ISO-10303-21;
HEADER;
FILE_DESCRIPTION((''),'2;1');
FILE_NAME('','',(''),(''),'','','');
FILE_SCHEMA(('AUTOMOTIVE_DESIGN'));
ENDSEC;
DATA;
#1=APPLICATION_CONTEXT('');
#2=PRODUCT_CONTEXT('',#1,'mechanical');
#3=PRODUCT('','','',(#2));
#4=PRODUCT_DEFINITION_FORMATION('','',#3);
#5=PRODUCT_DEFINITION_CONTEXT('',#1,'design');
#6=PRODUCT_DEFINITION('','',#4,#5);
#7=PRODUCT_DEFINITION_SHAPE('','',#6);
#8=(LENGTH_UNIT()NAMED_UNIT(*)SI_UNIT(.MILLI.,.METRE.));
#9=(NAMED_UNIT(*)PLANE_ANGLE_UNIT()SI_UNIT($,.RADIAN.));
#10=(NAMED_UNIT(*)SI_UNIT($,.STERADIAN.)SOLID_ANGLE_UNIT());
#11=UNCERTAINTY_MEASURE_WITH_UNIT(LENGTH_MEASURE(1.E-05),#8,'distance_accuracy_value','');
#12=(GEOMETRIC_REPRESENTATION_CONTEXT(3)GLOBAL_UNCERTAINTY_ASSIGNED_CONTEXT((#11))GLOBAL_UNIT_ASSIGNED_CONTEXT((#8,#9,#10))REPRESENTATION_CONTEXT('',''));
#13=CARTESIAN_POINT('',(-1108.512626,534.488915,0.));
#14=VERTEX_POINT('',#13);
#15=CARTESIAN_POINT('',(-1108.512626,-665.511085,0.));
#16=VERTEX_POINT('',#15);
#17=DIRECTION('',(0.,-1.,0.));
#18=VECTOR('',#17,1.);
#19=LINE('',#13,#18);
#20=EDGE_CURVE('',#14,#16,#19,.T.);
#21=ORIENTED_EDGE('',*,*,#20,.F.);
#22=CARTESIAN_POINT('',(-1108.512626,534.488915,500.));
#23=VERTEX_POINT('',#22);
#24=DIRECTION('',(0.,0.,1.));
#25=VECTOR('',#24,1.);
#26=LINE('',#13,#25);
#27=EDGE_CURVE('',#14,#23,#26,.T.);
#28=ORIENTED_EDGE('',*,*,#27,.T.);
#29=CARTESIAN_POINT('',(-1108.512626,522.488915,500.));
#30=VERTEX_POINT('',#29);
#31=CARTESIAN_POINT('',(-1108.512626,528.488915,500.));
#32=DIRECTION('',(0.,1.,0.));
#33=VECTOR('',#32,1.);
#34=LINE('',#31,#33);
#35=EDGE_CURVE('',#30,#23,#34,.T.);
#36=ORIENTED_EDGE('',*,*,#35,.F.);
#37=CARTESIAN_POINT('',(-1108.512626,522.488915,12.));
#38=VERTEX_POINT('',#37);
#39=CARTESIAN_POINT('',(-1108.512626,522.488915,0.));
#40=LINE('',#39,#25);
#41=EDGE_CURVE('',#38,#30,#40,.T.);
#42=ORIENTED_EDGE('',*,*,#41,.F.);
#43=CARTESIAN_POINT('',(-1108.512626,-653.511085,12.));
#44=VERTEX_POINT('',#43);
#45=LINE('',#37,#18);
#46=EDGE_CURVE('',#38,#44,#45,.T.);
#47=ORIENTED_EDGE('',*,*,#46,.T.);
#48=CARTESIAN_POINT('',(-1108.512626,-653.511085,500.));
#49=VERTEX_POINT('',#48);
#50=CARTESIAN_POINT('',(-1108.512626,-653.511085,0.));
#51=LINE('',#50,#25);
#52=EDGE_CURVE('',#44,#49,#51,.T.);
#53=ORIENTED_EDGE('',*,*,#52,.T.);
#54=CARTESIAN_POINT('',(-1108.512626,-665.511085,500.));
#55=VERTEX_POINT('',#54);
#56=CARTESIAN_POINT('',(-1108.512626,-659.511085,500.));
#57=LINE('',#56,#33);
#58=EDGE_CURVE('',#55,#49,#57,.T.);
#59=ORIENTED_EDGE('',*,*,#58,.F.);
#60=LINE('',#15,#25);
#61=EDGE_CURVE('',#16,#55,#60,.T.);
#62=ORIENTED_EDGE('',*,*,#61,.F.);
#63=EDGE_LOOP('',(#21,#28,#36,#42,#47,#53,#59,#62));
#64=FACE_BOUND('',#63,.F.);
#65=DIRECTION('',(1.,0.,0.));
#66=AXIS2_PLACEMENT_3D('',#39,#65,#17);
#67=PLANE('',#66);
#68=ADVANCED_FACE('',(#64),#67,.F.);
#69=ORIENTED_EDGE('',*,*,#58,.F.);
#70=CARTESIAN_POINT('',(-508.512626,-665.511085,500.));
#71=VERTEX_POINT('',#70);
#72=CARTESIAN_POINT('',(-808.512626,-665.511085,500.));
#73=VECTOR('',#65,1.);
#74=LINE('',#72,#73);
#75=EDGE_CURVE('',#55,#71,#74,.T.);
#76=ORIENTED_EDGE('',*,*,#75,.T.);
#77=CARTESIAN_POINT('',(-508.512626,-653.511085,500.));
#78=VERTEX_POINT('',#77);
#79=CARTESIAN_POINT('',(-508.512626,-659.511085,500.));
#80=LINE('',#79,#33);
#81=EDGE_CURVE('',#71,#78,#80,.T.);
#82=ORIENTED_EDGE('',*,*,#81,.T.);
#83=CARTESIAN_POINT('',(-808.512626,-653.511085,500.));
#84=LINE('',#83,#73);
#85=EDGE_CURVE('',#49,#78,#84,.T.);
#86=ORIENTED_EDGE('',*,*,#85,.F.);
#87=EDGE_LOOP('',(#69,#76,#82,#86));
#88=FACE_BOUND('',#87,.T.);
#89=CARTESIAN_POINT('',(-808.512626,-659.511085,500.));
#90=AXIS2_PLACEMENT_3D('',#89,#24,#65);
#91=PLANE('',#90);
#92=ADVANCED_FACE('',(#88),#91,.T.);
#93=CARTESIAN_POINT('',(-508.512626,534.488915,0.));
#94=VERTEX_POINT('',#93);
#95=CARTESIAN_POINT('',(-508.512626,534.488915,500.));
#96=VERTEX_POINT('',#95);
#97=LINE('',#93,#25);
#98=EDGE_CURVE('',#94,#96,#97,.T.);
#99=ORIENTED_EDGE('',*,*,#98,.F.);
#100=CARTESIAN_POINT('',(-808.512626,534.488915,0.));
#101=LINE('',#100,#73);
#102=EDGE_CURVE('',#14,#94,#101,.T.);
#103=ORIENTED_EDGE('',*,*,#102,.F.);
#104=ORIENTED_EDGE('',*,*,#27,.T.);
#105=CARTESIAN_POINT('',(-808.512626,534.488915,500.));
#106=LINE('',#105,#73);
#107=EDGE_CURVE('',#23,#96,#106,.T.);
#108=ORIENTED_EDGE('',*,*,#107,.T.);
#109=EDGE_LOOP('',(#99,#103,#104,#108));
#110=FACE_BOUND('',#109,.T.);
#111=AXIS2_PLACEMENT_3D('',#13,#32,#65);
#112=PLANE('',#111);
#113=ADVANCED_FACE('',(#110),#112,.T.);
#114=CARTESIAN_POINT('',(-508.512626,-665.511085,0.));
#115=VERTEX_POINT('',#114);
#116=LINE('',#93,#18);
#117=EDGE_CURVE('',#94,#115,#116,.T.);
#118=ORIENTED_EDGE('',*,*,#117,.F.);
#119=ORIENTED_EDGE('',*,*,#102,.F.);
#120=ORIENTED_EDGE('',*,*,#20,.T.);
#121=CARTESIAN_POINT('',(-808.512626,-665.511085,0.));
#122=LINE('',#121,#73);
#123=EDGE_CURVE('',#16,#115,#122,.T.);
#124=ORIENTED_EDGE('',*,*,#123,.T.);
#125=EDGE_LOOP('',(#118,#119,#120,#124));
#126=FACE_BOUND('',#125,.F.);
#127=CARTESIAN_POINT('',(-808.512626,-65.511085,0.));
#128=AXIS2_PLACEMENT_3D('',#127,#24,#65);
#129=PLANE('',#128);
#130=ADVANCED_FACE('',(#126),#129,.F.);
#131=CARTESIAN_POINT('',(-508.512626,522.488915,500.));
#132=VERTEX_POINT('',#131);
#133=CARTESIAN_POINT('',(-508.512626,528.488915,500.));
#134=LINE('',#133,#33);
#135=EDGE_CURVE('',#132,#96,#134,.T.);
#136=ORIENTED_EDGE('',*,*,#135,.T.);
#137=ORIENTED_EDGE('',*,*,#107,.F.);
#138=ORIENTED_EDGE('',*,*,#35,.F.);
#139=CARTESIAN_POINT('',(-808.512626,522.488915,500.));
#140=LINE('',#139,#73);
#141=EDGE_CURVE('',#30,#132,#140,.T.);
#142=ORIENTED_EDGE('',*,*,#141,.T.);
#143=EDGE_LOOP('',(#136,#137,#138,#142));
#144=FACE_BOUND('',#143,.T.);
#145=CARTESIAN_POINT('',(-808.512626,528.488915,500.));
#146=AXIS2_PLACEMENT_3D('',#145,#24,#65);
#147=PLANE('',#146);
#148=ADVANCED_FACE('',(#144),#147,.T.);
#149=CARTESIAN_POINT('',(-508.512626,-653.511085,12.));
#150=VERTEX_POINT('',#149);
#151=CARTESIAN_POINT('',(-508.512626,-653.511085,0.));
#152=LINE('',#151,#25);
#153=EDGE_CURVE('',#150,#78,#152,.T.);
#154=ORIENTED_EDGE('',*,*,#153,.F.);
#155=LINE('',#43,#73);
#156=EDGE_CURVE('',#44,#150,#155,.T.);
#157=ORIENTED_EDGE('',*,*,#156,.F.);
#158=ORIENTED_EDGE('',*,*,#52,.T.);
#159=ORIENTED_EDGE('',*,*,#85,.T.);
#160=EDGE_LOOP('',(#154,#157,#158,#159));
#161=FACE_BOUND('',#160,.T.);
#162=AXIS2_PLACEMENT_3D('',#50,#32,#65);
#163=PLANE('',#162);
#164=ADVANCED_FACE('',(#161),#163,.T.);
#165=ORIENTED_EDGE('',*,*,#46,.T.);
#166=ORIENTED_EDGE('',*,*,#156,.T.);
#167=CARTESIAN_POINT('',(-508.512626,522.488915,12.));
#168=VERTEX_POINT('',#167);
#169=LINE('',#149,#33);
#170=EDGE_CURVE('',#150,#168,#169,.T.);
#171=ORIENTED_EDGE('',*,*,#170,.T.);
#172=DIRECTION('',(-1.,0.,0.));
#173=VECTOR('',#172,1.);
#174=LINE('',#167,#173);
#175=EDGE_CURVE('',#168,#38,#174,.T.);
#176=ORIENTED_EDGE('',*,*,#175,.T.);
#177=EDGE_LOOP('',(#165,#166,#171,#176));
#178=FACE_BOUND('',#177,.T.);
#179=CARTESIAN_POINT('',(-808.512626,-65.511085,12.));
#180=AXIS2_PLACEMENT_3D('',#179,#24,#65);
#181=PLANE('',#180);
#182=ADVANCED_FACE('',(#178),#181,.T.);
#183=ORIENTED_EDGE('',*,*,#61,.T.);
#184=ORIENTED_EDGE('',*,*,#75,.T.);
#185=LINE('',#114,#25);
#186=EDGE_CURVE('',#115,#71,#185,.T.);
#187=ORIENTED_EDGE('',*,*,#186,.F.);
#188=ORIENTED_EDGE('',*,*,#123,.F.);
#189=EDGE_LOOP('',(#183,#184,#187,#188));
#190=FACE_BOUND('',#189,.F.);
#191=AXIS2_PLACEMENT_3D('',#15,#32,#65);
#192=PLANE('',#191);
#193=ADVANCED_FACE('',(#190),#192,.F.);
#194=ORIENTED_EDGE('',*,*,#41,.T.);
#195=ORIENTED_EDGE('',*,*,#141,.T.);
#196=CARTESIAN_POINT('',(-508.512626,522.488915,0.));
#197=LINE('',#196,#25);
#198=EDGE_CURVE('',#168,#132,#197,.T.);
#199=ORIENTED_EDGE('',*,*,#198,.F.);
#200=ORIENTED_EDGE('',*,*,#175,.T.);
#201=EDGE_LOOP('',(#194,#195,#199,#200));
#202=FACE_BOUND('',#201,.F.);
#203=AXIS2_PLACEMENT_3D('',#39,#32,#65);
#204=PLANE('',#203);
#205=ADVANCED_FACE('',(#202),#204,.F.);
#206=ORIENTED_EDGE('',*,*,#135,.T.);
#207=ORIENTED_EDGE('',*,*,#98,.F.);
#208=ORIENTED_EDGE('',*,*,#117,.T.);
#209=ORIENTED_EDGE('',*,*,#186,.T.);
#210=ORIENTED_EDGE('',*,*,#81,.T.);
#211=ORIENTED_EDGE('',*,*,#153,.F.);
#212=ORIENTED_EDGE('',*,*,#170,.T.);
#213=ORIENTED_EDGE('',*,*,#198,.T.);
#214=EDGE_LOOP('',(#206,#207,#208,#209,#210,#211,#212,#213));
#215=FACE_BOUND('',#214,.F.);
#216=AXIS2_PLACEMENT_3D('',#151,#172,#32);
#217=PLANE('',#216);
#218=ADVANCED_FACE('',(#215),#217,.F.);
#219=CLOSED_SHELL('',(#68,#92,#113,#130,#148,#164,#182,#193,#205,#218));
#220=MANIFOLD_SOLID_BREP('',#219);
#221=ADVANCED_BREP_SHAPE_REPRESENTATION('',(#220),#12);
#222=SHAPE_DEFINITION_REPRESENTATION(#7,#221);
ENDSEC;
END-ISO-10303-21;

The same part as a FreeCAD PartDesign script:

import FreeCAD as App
import Part
import Sketcher

V = App.Vector
Q = App.Units.Quantity


def add_polygon(sketch, points):
    """Adds a closed chain of lines whose ends are joined by coincident constraints."""
    first, n = sketch.GeometryCount, len(points)
    for a, b in zip(points, points[1:] + points[:1]):
        sketch.addGeometry(Part.LineSegment(App.Vector(*a, 0), App.Vector(*b, 0)), False)
    for i in range(n):
        sketch.addConstraint(Sketcher.Constraint("Coincident", first + i, 2, first + (i + 1) % n, 1))

doc = App.newDocument("Part")
params = doc.addObject("Spreadsheet::Sheet", "Params")
for row, (alias, value) in enumerate([
    ("sketch1_width", "600 mm"),
    ("sketch1_height", "12 mm"),
    ("pad1_length", "500 mm"),
    ("sketch2_width", "600 mm"),
    ("sketch2_height", "12 mm"),
    ("pad2_length", "500 mm"),
    ("sketch3_width", "600 mm"),
    ("sketch3_height", "1176 mm"),
    ("pad3_length", "12 mm"),
], start=1):
    params.set(f"A{row}", alias)
    params.set(f"B{row}", "=" + value)
    params.setAlias(f"B{row}", alias)

body = doc.addObject("PartDesign::Body", "Body")

# Sketch on XY plane
sketch1 = body.newObject("Sketcher::SketchObject", "Sketch")
sketch1.AttachmentSupport = (doc.getObject("XY_Plane"), [""])
sketch1.MapMode = "FlatFace"
add_polygon(sketch1, [(-1109, 534), (-1109, 522), (-509, 522), (-509, 534)])  # lines 0-3
sketch1.addConstraint(Sketcher.Constraint("Vertical", 0))
sketch1.addConstraint(Sketcher.Constraint("Horizontal", 1))
sketch1.addConstraint(Sketcher.Constraint("Vertical", 2))
sketch1.addConstraint(Sketcher.Constraint("Horizontal", 3))
sketch1.addConstraint(Sketcher.Constraint("DistanceX", 1, 1, 1, 2, Q("600 mm")))
sketch1.addConstraint(Sketcher.Constraint("DistanceY", 0, 2, 0, 1, Q("12 mm")))
sketch1.addConstraint(Sketcher.Constraint("DistanceX", 0, 2, -1, 1, Q("1108.512626 mm")))
sketch1.addConstraint(Sketcher.Constraint("DistanceY", -1, 1, 0, 2, Q("522.488915 mm")))
sketch1.setExpression("Constraints[8]", "Params.sketch1_width")
sketch1.setExpression("Constraints[9]", "Params.sketch1_height")
pad1 = body.newObject("PartDesign::Pad", "Pad")
pad1.Profile = sketch1
pad1.setExpression("Length", "Params.pad1_length")
body2 = doc.addObject("PartDesign::Body", "Body001")

# Sketch on XY plane
sketch2 = body2.newObject("Sketcher::SketchObject", "Sketch001")
sketch2.AttachmentSupport = (doc.getObject("XY_Plane001"), [""])
sketch2.MapMode = "FlatFace"
add_polygon(sketch2, [(-1109, -654), (-1109, -666), (-509, -666), (-509, -654)])  # lines 0-3
sketch2.addConstraint(Sketcher.Constraint("Vertical", 0))
sketch2.addConstraint(Sketcher.Constraint("Horizontal", 1))
sketch2.addConstraint(Sketcher.Constraint("Vertical", 2))
sketch2.addConstraint(Sketcher.Constraint("Horizontal", 3))
sketch2.addConstraint(Sketcher.Constraint("DistanceX", 1, 1, 1, 2, Q("600 mm")))
sketch2.addConstraint(Sketcher.Constraint("DistanceY", 0, 2, 0, 1, Q("12 mm")))
sketch2.addConstraint(Sketcher.Constraint("DistanceX", 0, 2, -1, 1, Q("1108.512626 mm")))
sketch2.addConstraint(Sketcher.Constraint("DistanceY", 0, 2, -1, 1, Q("665.511085 mm")))
sketch2.setExpression("Constraints[8]", "Params.sketch2_width")
sketch2.setExpression("Constraints[9]", "Params.sketch2_height")
pad2 = body2.newObject("PartDesign::Pad", "Pad001")
pad2.Profile = sketch2
pad2.setExpression("Length", "Params.pad2_length")
body.AllowCompound = True
doc.recompute()

boolean = body.newObject("PartDesign::Boolean", "Boolean")
boolean.Type = "Fuse"
boolean.addObjects([body2])

# Sketch on XY plane
sketch3 = body.newObject("Sketcher::SketchObject", "Sketch002")
sketch3.AttachmentSupport = (doc.getObject("XY_Plane"), [""])
sketch3.MapMode = "FlatFace"
add_polygon(sketch3, [(-509, 522), (-1109, 522), (-1109, -654), (-509, -654)])  # lines 0-3
sketch3.addConstraint(Sketcher.Constraint("Horizontal", 0))
sketch3.addConstraint(Sketcher.Constraint("Vertical", 1))
sketch3.addConstraint(Sketcher.Constraint("Horizontal", 2))
sketch3.addConstraint(Sketcher.Constraint("Vertical", 3))
sketch3.addConstraint(Sketcher.Constraint("DistanceX", 0, 2, 0, 1, Q("600 mm")))
sketch3.addConstraint(Sketcher.Constraint("DistanceY", 1, 2, 1, 1, Q("1176 mm")))
sketch3.addConstraint(Sketcher.Constraint("DistanceX", 0, 2, -1, 1, Q("1108.512626 mm")))
sketch3.addConstraint(Sketcher.Constraint("DistanceY", -1, 1, 0, 2, Q("522.488915 mm")))
sketch3.setExpression("Constraints[8]", "Params.sketch3_width")
sketch3.setExpression("Constraints[9]", "Params.sketch3_height")
pad3 = body.newObject("PartDesign::Pad", "Pad002")
pad3.Profile = sketch3
pad3.setExpression("Length", "Params.pad3_length")

doc.recompute()
